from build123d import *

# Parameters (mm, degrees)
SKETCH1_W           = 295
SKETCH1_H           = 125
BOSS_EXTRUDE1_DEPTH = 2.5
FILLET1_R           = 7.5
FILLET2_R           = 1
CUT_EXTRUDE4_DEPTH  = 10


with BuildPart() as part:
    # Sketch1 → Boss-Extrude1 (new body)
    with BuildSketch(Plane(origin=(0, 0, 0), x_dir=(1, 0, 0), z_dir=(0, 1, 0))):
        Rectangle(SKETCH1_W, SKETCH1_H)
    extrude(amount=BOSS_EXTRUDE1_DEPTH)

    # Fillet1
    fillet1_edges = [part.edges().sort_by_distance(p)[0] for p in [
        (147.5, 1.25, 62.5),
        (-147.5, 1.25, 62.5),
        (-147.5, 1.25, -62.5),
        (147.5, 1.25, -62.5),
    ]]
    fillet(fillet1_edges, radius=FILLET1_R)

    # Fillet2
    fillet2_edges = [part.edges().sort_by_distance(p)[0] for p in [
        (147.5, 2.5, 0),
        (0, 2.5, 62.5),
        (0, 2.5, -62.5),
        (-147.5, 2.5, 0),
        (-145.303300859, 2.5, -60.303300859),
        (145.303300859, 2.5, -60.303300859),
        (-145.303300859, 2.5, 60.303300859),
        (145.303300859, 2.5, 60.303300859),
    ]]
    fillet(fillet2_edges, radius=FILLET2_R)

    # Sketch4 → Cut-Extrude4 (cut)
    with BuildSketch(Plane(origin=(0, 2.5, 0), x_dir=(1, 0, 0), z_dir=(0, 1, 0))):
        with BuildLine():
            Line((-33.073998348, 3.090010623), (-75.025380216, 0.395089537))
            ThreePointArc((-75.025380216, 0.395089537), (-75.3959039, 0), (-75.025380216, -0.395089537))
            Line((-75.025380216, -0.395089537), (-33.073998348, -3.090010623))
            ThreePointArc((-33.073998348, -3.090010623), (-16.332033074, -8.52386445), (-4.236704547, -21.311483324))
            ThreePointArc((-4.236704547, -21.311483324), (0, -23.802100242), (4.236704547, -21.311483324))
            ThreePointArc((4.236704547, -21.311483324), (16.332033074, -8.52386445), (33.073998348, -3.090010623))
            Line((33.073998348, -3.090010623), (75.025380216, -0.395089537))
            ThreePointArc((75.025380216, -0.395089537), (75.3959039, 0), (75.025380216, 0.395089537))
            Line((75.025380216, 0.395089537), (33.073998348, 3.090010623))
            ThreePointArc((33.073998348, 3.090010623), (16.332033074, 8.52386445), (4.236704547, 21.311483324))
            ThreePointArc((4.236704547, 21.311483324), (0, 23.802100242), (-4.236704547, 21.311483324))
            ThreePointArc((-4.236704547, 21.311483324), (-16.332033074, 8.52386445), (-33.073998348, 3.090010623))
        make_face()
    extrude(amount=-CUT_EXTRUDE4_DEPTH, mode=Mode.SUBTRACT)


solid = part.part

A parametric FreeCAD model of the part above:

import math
import FreeCAD as App
import Part
import Sketcher

V = App.Vector


def edges_at(feature, points):
    """Names of the edges that pass closest to the given points."""
    edges = feature.Shape.Edges
    near = lambda p: min(range(len(edges)), key=lambda i: edges[i].distToShape(Part.Vertex(*p))[0])
    return sorted({f"Edge{near(p) + 1}" for p in points})


def add_polygon(sketch, points):
    """Adds a closed chain of lines whose ends are joined by coincident constraints."""
    first, n = sketch.GeometryCount, len(points)
    for a, b in zip(points, points[1:] + points[:1]):
        sketch.addGeometry(Part.LineSegment(App.Vector(*a, 0), App.Vector(*b, 0)), False)
    for i in range(n):
        sketch.addConstraint(Sketcher.Constraint("Coincident", first + i, 2, first + (i + 1) % n, 1))

doc = App.newDocument("Part")
body = doc.addObject("PartDesign::Body", "Body")

# Sketch on XZ plane
sketch1 = doc.addObject("Sketcher::SketchObject", "Sketch")
body.addObject(sketch1)
sketch1.AttachmentSupport = (doc.XZ_Plane, [""])
sketch1.MapMode = "FlatFace"
add_polygon(sketch1, [(-148, -62), (-148, 62), (148, 62), (148, -62)])  # lines 0-3
sketch1.addConstraint([
    Sketcher.Constraint("Vertical", 0),
    Sketcher.Constraint("Horizontal", 1),
    Sketcher.Constraint("Vertical", 2),
    Sketcher.Constraint("Horizontal", 3),
    Sketcher.Constraint("Symmetric", 0, 2, 2, 2, -1, 1),
    Sketcher.Constraint("DistanceX", 1, 1, 1, 2, 295.0),
    Sketcher.Constraint("DistanceY", 0, 1, 0, 2, 125.0),
])
pad1 = doc.addObject("PartDesign::Pad", "Pad")
body.addObject(pad1)
pad1.Profile = sketch1
pad1.Length = 2.5
pad1.Reversed = True
doc.recompute()

fillet = doc.addObject("PartDesign::Fillet", "Fillet")
body.addObject(fillet)
fillet.Base = (pad1, edges_at(pad1, [
    (147.5, 1.25, 62.5),
    (-147.5, 1.25, 62.5),
    (-147.5, 1.25, -62.5),
    (147.5, 1.25, -62.5),
]))
fillet.Radius = 7.5
doc.recompute()

fillet2 = doc.addObject("PartDesign::Fillet", "Fillet001")
body.addObject(fillet2)
fillet2.Base = (fillet, edges_at(fillet, [
    (147.5, 2.5, 0),
    (0, 2.5, 62.5),
    (0, 2.5, -62.5),
    (-147.5, 2.5, 0),
    (-145.303, 2.5, -60.303),
    (145.303, 2.5, -60.303),
    (-145.303, 2.5, 60.303),
    (145.303, 2.5, 60.303),
]))
fillet2.Radius = 1

# Sketch on XZ plane
sketch2 = doc.addObject("Sketcher::SketchObject", "Sketch001")
body.addObject(sketch2)
sketch2.AttachmentSupport = (doc.XZ_Plane, [""])
sketch2.MapMode = "FlatFace"
sketch2.AttachmentOffset = App.Placement(V(0, 0, -2.5), App.Rotation())
sketch2.addGeometry([
    Part.LineSegment(V(-33.07, -3.09, 0), V(-75.03, -0.4, 0)),  # 0
    Part.ArcOfCircle(Part.Circle(V(-75, 0, 0), V(0, 0, 1), 0.4), math.radians(94), math.radians(266)),  # 1
    Part.LineSegment(V(-75.03, 0.4, 0), V(-33.07, 3.09, 0)),  # 2
    Part.ArcOfCircle(Part.Circle(V(-35.36, 38.63, 0), V(0, 0, 1), 35.62), math.radians(-86), math.radians(-29)),  # 3
    Part.ArcOfCircle(Part.Circle(V(0, 18.95, 0), V(0, 0, 1), 4.85), math.radians(29), math.radians(151)),  # 4
    Part.ArcOfCircle(Part.Circle(V(35.36, 38.63, 0), V(0, 0, 1), 35.62), math.radians(-151), math.radians(-94)),  # 5
    Part.LineSegment(V(33.07, 3.09, 0), V(75.03, 0.4, 0)),  # 6
    Part.ArcOfCircle(Part.Circle(V(75, 0, 0), V(0, 0, 1), 0.4), math.radians(-86), math.radians(86)),  # 7
    Part.LineSegment(V(75.03, -0.4, 0), V(33.07, -3.09, 0)),  # 8
    Part.ArcOfCircle(Part.Circle(V(35.36, -38.63, 0), V(0, 0, 1), 35.62), math.radians(94), math.radians(151)),  # 9
    Part.ArcOfCircle(Part.Circle(V(0, -18.95, 0), V(0, 0, 1), 4.85), math.radians(-151), math.radians(-29)),  # 10
    Part.ArcOfCircle(Part.Circle(V(-35.36, -38.63, 0), V(0, 0, 1), 35.62), math.radians(29), math.radians(86)),  # 11
], False)
sketch2.addConstraint([
    Sketcher.Constraint("Tangent", 0, 2, 1, 2),
    Sketcher.Constraint("Tangent", 1, 1, 2, 1),
    Sketcher.Constraint("Tangent", 2, 2, 3, 1),
    Sketcher.Constraint("Tangent", 3, 2, 4, 2),
    Sketcher.Constraint("Tangent", 4, 1, 5, 1),
    Sketcher.Constraint("Tangent", 5, 2, 6, 1),
    Sketcher.Constraint("Tangent", 6, 2, 7, 2),
    Sketcher.Constraint("Tangent", 7, 1, 8, 1),
    Sketcher.Constraint("Tangent", 8, 2, 9, 1),
    Sketcher.Constraint("Tangent", 9, 2, 10, 2),
    Sketcher.Constraint("Tangent", 10, 1, 11, 1),
    Sketcher.Constraint("Tangent", 11, 2, 0, 1),
    Sketcher.Constraint("Equal", 3, 5),
    Sketcher.Constraint("Equal", 1, 7),
    Sketcher.Constraint("Equal", 5, 9),
    Sketcher.Constraint("Equal", 4, 10),
    Sketcher.Constraint("Equal", 9, 11),
    Sketcher.Constraint("Symmetric", 1, 3, 7, 3, -1, 1),
    Sketcher.Constraint("Symmetric", 3, 3, 9, 3, -1, 1),
    Sketcher.Constraint("Symmetric", 5, 3, 11, 3, -1, 1),
    Sketcher.Constraint("Symmetric", 3, 3, 5, 3, -2),
    Sketcher.Constraint("PointOnObject", 1, 3, -1),
    Sketcher.Constraint("DistanceX", 1, 3, -1, 1, 75.0),
    Sketcher.Constraint("DistanceX", 2, 2, -1, 1, 33.073998),
    Sketcher.Constraint("Radius", 1, 0.395904),
    Sketcher.Constraint("Radius", 3, 35.616433),
    Sketcher.Constraint("Radius", 4, 4.848766),
    Sketcher.Constraint("DistanceY", 3, 2, 3, 3, 17.321698),
])
pocket1 = doc.addObject("PartDesign::Pocket", "Pocket")
body.addObject(pocket1)
pocket1.Profile = sketch2
pocket1.Length = 10
pocket1.Reversed = True

doc.recompute()
